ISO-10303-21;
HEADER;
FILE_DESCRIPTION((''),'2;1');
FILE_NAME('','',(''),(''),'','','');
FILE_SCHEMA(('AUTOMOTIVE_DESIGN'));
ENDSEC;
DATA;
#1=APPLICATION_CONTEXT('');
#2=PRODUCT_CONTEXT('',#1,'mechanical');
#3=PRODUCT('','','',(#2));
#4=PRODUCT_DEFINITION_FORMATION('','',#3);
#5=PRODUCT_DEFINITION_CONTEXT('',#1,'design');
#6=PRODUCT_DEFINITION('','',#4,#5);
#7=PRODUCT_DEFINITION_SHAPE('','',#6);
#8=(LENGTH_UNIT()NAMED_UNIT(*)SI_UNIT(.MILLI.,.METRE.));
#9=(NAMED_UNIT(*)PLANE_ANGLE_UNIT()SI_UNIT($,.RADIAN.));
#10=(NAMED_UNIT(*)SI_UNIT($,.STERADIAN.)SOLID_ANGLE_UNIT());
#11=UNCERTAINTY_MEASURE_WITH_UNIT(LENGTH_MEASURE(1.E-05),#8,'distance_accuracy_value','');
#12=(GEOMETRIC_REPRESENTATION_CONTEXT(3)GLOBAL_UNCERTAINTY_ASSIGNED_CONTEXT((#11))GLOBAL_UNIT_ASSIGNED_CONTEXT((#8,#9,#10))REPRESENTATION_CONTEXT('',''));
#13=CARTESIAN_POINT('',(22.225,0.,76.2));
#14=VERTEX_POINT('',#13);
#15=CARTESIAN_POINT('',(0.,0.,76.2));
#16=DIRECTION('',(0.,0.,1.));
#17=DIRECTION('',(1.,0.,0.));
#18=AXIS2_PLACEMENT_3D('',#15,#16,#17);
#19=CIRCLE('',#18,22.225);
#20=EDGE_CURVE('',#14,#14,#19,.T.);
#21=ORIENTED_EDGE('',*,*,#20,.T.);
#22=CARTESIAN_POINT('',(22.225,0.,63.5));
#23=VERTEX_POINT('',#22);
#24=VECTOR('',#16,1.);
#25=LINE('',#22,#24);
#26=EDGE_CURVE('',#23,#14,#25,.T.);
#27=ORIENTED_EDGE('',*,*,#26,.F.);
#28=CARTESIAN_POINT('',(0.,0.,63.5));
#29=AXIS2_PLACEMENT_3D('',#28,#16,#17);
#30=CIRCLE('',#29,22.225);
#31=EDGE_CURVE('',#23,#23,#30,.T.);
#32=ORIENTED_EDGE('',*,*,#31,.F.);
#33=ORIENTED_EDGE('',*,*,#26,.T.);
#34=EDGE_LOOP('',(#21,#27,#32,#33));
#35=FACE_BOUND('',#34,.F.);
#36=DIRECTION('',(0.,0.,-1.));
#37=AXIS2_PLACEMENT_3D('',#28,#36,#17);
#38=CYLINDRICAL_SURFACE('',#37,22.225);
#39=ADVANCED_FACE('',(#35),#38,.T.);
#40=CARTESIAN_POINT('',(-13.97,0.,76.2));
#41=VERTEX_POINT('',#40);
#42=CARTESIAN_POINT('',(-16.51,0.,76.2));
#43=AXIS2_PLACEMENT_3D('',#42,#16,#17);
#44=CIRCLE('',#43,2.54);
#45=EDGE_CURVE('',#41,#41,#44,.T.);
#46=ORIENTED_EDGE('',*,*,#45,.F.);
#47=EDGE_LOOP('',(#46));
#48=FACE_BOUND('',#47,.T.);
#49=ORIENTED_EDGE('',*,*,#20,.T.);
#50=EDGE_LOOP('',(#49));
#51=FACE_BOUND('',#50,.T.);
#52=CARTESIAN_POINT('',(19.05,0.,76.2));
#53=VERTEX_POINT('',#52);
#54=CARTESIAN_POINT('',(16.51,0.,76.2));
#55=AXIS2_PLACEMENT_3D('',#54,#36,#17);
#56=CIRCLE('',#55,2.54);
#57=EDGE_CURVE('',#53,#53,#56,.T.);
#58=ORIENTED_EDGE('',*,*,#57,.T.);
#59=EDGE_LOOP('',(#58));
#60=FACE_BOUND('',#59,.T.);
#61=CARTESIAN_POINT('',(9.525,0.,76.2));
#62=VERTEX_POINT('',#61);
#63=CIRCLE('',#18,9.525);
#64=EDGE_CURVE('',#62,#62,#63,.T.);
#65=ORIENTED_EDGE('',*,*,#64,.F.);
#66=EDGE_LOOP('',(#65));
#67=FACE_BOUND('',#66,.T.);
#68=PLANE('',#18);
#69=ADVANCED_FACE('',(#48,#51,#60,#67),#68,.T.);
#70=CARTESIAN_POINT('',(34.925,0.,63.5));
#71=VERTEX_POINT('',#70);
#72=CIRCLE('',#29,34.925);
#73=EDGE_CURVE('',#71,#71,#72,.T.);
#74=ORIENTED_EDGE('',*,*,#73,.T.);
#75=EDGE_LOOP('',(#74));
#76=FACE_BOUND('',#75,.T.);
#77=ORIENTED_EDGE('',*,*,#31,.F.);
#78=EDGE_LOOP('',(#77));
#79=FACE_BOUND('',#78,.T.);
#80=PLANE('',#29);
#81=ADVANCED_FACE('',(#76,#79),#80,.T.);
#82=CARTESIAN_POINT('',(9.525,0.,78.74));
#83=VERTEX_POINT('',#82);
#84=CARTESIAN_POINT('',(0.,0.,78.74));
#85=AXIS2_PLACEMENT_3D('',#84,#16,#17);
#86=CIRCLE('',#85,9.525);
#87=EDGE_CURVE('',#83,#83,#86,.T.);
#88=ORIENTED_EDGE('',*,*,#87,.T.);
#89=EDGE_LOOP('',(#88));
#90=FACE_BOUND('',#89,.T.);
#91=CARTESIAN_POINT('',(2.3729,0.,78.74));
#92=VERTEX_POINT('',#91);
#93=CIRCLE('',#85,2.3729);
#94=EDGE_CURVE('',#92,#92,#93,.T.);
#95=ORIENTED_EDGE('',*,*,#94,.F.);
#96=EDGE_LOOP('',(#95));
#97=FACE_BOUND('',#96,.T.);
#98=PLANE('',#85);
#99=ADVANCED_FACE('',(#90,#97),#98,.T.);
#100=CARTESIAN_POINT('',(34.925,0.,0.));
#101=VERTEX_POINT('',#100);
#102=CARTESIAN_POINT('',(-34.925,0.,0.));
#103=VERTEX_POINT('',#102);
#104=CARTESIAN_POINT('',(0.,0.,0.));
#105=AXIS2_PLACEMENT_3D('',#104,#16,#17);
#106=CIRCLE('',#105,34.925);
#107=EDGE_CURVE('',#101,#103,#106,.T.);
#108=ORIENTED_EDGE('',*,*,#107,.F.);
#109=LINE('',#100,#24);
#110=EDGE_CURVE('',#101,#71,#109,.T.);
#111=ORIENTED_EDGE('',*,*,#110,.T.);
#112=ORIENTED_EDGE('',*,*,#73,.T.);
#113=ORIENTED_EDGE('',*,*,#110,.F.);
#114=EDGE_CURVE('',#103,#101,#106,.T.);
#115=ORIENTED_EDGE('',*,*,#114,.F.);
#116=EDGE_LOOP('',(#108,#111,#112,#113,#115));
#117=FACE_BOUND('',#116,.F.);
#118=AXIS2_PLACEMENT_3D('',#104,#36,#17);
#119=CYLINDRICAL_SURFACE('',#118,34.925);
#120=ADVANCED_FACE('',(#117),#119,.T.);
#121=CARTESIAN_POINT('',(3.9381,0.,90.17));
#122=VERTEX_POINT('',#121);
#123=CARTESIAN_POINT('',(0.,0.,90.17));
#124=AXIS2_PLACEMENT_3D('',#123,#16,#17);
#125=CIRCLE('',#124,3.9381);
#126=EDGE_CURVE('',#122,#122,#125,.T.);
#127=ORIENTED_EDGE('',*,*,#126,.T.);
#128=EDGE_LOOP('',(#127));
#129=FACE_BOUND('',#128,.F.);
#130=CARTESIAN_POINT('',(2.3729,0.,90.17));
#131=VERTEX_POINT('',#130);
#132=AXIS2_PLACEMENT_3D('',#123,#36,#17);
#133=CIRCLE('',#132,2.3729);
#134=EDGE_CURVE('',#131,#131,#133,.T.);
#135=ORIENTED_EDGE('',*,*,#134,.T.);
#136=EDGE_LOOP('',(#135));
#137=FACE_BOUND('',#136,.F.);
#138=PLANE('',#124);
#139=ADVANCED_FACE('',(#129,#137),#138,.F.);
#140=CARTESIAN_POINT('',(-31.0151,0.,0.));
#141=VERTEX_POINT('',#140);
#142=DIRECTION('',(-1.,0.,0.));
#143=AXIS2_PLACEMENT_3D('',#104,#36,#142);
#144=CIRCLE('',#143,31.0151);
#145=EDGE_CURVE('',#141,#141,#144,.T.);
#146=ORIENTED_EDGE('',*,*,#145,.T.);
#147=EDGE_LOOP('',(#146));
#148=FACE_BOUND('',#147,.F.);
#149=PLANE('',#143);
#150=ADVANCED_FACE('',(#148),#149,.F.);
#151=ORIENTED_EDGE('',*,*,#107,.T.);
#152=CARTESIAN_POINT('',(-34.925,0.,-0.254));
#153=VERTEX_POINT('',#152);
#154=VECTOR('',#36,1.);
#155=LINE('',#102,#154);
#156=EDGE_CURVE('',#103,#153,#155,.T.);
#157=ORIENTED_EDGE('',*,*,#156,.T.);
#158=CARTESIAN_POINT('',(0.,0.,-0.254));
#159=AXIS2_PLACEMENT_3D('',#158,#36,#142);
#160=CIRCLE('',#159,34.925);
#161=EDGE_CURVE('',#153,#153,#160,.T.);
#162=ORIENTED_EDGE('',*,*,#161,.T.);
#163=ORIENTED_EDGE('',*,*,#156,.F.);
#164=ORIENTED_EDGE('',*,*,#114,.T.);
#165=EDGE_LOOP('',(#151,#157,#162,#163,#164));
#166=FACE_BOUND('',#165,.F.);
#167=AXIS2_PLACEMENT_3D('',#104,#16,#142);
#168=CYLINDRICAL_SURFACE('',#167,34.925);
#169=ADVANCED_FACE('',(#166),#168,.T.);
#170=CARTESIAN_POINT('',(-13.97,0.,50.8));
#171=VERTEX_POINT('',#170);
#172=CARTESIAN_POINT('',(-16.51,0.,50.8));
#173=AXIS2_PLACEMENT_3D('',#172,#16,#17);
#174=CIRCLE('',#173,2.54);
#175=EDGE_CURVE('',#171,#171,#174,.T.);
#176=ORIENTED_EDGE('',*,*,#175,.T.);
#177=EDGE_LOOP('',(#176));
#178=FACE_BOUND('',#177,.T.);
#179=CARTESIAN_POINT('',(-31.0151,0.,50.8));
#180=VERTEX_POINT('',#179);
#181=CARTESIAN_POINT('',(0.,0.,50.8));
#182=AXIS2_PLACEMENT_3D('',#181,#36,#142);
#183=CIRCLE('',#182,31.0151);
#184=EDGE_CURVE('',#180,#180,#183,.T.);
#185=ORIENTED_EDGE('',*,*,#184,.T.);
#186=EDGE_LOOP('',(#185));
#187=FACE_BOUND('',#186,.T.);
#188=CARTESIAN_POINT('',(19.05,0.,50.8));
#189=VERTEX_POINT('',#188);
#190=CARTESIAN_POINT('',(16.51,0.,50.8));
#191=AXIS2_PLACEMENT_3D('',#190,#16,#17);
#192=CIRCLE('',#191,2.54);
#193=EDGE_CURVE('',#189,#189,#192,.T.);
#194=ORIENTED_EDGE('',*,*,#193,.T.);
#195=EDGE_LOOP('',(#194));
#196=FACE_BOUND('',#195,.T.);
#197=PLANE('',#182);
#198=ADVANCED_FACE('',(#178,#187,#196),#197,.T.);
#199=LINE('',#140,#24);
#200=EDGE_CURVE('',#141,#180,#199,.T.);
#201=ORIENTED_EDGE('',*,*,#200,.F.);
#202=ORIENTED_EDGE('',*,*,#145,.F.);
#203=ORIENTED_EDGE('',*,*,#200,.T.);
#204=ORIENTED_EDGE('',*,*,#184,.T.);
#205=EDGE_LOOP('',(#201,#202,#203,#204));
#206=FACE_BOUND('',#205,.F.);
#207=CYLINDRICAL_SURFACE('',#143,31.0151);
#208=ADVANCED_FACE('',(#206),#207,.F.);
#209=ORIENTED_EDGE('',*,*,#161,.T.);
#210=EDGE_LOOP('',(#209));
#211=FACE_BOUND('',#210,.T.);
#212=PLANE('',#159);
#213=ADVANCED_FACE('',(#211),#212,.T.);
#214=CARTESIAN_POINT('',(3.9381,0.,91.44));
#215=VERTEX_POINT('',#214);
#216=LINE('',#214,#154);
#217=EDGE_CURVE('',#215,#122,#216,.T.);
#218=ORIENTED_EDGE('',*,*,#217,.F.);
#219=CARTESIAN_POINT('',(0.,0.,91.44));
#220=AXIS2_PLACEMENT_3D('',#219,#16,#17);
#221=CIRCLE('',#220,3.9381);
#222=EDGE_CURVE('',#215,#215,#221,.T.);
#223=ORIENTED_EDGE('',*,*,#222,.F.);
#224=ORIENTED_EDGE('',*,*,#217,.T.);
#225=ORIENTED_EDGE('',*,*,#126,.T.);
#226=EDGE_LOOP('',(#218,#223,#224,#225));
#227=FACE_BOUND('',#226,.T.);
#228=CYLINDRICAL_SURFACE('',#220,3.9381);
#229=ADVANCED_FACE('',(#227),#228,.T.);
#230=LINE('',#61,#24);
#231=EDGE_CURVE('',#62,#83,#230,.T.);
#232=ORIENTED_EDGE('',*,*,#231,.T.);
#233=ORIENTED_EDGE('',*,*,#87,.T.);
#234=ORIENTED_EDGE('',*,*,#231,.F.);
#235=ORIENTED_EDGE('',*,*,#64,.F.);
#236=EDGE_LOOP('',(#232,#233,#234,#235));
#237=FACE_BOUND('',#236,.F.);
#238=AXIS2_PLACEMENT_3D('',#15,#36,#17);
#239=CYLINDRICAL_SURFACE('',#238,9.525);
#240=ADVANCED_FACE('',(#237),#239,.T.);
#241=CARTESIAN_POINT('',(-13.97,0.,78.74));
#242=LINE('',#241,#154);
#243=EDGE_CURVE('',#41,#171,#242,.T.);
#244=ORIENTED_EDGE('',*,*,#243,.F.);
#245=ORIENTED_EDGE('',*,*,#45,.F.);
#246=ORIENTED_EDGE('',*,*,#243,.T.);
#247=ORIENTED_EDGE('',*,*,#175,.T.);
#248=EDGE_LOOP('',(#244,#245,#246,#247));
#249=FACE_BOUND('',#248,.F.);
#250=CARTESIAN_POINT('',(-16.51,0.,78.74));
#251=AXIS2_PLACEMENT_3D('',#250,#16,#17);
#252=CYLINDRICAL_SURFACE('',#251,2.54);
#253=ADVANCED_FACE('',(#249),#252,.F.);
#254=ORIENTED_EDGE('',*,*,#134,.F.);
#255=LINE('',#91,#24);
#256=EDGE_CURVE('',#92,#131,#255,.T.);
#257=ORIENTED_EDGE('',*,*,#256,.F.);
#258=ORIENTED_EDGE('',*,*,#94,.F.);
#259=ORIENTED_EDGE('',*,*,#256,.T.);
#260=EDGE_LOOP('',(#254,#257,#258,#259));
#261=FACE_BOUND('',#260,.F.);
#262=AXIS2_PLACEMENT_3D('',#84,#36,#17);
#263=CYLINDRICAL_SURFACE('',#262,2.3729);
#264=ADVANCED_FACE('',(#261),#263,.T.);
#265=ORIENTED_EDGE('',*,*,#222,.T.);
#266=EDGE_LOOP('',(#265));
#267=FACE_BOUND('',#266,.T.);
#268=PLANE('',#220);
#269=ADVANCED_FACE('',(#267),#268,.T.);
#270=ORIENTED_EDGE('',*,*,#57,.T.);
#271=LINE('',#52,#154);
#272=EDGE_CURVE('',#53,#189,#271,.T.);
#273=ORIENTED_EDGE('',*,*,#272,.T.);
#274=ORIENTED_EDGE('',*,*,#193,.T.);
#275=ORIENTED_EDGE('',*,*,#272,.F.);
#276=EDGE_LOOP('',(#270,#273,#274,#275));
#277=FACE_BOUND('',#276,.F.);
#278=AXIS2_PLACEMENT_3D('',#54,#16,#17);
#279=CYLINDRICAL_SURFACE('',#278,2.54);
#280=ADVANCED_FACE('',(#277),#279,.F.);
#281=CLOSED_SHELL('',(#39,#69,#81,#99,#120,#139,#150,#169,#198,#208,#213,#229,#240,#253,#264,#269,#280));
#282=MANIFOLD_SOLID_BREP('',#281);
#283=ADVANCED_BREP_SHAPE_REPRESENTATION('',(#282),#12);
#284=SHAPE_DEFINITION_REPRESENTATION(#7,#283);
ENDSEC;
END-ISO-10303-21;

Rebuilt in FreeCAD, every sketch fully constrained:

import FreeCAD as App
import Part
import Sketcher
Q = App.Units.Quantity

doc = App.newDocument("Part")
body = doc.addObject("PartDesign::Body", "Body")

# Sketch on XY plane
sketch1 = body.newObject("Sketcher::SketchObject", "Sketch")
sketch1.AttachmentSupport = (doc.getObject("XY_Plane"), [""])
sketch1.MapMode = "FlatFace"
sketch1.addGeometry(Part.Circle(App.Vector(0, 0, 0), App.Vector(0, 0, 1), 35), False)
sketch1.addConstraint([
    Sketcher.Constraint("Coincident", 0, 3, -1, 1),
    Sketcher.Constraint("Diameter", 0, Q("2.75 in")),
])
pad1 = body.newObject("PartDesign::Pad", "Pad")
pad1.Profile = sketch1
pad1.Length = Q("2.5 in")

# Sketch on XY plane
sketch2 = body.newObject("Sketcher::SketchObject", "Sketch001")
sketch2.AttachmentSupport = (doc.getObject("XY_Plane"), [""])
sketch2.MapMode = "FlatFace"
sketch2.AttachmentOffset = App.Placement(App.Vector(0, 0, 2.5 * 25.4), App.Rotation())
sketch2.addGeometry(Part.Circle(App.Vector(0, 0, 0), App.Vector(0, 0, 1), 22), False)
sketch2.addConstraint([
    Sketcher.Constraint("Coincident", 0, 3, -1, 1),
    Sketcher.Constraint("Diameter", 0, Q("1.75 in")),
])
pad2 = body.newObject("PartDesign::Pad", "Pad001")
pad2.Profile = sketch2
pad2.Length = Q("0.5 in")

# Sketch on XY plane
sketch3 = body.newObject("Sketcher::SketchObject", "Sketch002")
sketch3.AttachmentSupport = (doc.getObject("XY_Plane"), [""])
sketch3.MapMode = "FlatFace"
sketch3.AttachmentOffset = App.Placement(App.Vector(0, 0, 3 * 25.4), App.Rotation())
sketch3.addGeometry(Part.Circle(App.Vector(0, 0, 0), App.Vector(0, 0, 1), 10), False)
sketch3.addConstraint([
    Sketcher.Constraint("Coincident", 0, 3, -1, 1),
    Sketcher.Constraint("Diameter", 0, Q("0.75 in")),
])
pad3 = body.newObject("PartDesign::Pad", "Pad002")
pad3.Profile = sketch3
pad3.Length = Q("0.1 in")

# Sketch on XY plane
sketch4 = body.newObject("Sketcher::SketchObject", "Sketch003")
sketch4.AttachmentSupport = (doc.getObject("XY_Plane"), [""])
sketch4.MapMode = "FlatFace"
sketch4.AttachmentOffset = App.Placement(App.Vector(0, 0, 3.1 * 25.4), App.Rotation())
sketch4.addGeometry(Part.Circle(App.Vector(0, 0, 0), App.Vector(0, 0, 1), 2.4), False)
sketch4.addConstraint([
    Sketcher.Constraint("Coincident", 0, 3, -1, 1),
    Sketcher.Constraint("Diameter", 0, Q("4.7458 mm")),
])
pad4 = body.newObject("PartDesign::Pad", "Pad003")
pad4.Profile = sketch4
pad4.Length = Q("0.5 in")

# Sketch on XY plane
sketch5 = body.newObject("Sketcher::SketchObject", "Sketch004")
sketch5.AttachmentSupport = (doc.getObject("XY_Plane"), [""])
sketch5.MapMode = "FlatFace"
sketch5.AttachmentOffset = App.Placement(App.Vector(0, 0, 3.6 * 25.4), App.Rotation())
sketch5.addGeometry(Part.Circle(App.Vector(0, 0, 0), App.Vector(0, 0, 1), 3.9), False)
sketch5.addConstraint([
    Sketcher.Constraint("Coincident", 0, 3, -1, 1),
    Sketcher.Constraint("Diameter", 0, Q("7.8762 mm")),
])
pad5 = body.newObject("PartDesign::Pad", "Pad004")
pad5.Profile = sketch5
pad5.Length = Q("0.05 in")
pad5.Reversed = True

# Sketch on XY plane
sketch6 = body.newObject("Sketcher::SketchObject", "Sketch005")
sketch6.AttachmentSupport = (doc.getObject("XY_Plane"), [""])
sketch6.MapMode = "FlatFace"
sketch6.AttachmentOffset = App.Placement(App.Vector(0, 0, 3.1 * 25.4), App.Rotation())
sketch6.addGeometry(Part.Circle(App.Vector(-16.5, 0, 0), App.Vector(0, 0, 1), 2.5), False)
sketch6.addConstraint([
    Sketcher.Constraint("PointOnObject", 0, 3, -1),
    Sketcher.Constraint("Diameter", 0, Q("0.2 in")),
    Sketcher.Constraint("DistanceX", 0, 3, -1, 1, Q("0.65 in")),
])
pocket1 = body.newObject("PartDesign::Pocket", "Pocket")
pocket1.Profile = sketch6
pocket1.Length = Q("1.5 in")

# Sketch on XY plane
sketch7 = body.newObject("Sketcher::SketchObject", "Sketch006")
sketch7.AttachmentSupport = (doc.getObject("XY_Plane"), [""])
sketch7.MapMode = "FlatFace"
sketch7.AttachmentOffset = App.Placement(App.Vector(0, 0, 3 * 25.4), App.Rotation())
sketch7.addGeometry(Part.Circle(App.Vector(16.5, 0, 0), App.Vector(0, 0, 1), 2.5), False)
sketch7.addConstraint([
    Sketcher.Constraint("PointOnObject", 0, 3, -1),
    Sketcher.Constraint("Diameter", 0, Q("0.2 in")),
    Sketcher.Constraint("DistanceX", -1, 1, 0, 3, Q("0.65 in")),
])
pocket2 = body.newObject("PartDesign::Pocket", "Pocket001")
pocket2.Profile = sketch7
pocket2.Length = Q("1.5 in")

# Sketch on XY plane
sketch8 = body.newObject("Sketcher::SketchObject", "Sketch007")
sketch8.AttachmentSupport = (doc.getObject("XY_Plane"), [""])
sketch8.MapMode = "FlatFace"
sketch8.addGeometry(Part.Circle(App.Vector(0, 0, 0), App.Vector(0, 0, 1), 31), False)
sketch8.addConstraint([
    Sketcher.Constraint("Coincident", 0, 3, -1, 1),
    Sketcher.Constraint("Diameter", 0, Q("62.0302 mm")),
])
pocket3 = body.newObject("PartDesign::Pocket", "Pocket002")
pocket3.Profile = sketch8
pocket3.Length = Q("2 in")
pocket3.Reversed = True

# Sketch on XY plane
sketch9 = body.newObject("Sketcher::SketchObject", "Sketch008")
sketch9.AttachmentSupport = (doc.getObject("XY_Plane"), [""])
sketch9.MapMode = "FlatFace"
sketch9.addGeometry(Part.Circle(App.Vector(0, 0, 0), App.Vector(0, 0, 1), 35), False)
sketch9.addConstraint([
    Sketcher.Constraint("Coincident", 0, 3, -1, 1),
    Sketcher.Constraint("Diameter", 0, Q("2.75 in")),
])
pad6 = body.newObject("PartDesign::Pad", "Pad005")
pad6.Profile = sketch9
pad6.Length = Q("0.01 in")
pad6.Reversed = True

doc.recompute()
